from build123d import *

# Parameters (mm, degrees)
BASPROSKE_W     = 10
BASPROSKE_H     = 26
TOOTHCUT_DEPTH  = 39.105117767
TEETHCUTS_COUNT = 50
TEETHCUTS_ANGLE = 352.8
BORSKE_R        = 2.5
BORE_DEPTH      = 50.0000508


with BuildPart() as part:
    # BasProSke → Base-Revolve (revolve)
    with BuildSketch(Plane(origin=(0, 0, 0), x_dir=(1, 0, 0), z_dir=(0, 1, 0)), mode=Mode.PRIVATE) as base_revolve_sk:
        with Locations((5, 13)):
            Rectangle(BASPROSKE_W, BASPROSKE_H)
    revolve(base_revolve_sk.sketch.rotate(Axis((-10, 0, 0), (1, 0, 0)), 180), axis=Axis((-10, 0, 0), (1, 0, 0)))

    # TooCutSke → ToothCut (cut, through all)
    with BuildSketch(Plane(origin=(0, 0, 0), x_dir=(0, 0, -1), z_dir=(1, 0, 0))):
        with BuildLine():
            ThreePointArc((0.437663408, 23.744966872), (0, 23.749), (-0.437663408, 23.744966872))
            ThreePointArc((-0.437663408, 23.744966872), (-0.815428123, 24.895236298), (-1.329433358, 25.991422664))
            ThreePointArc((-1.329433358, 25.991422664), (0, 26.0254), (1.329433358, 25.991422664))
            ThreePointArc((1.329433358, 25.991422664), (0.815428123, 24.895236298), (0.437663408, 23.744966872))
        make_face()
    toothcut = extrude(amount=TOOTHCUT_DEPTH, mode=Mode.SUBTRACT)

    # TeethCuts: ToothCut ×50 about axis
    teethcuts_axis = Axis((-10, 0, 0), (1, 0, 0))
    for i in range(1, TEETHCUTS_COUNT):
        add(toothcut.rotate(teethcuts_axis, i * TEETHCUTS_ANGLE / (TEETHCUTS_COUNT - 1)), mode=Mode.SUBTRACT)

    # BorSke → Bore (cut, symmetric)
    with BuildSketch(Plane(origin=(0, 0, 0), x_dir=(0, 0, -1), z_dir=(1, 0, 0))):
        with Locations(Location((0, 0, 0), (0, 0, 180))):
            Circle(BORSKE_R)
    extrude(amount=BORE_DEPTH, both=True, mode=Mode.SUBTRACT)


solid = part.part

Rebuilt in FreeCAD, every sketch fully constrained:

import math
import FreeCAD as App
import Part
import Sketcher

doc = App.newDocument("Part")
body = doc.addObject("PartDesign::Body", "Body")

# Sketch on XZ plane
sketch1 = doc.addObject("Sketcher::SketchObject", "Sketch")
body.addObject(sketch1)
sketch1.AttachmentSupport = (doc.XZ_Plane, [""])
sketch1.MapMode = "FlatFace"
sketch1.addGeometry(Part.LineSegment(App.Vector(0, -26, 0), App.Vector(0, 0, 0)), False)
sketch1.addGeometry(Part.LineSegment(App.Vector(0, 0, 0), App.Vector(10, 0, 0)), False)
sketch1.addGeometry(Part.LineSegment(App.Vector(10, 0, 0), App.Vector(10, -26, 0)), False)
sketch1.addGeometry(Part.LineSegment(App.Vector(10, -26, 0), App.Vector(0, -26, 0)), False)
sketch1.addConstraint(Sketcher.Constraint("Coincident", 0, 2, 1, 1))
sketch1.addConstraint(Sketcher.Constraint("Coincident", 1, 2, 2, 1))
sketch1.addConstraint(Sketcher.Constraint("Coincident", 2, 2, 3, 1))
sketch1.addConstraint(Sketcher.Constraint("Coincident", 3, 2, 0, 1))
sketch1.addConstraint(Sketcher.Constraint("Vertical", 0))
sketch1.addConstraint(Sketcher.Constraint("Horizontal", 1))
sketch1.addConstraint(Sketcher.Constraint("Vertical", 2))
sketch1.addConstraint(Sketcher.Constraint("Horizontal", 3))
sketch1.addConstraint(Sketcher.Constraint("Coincident", 0, 2, -1, 1))
sketch1.addConstraint(Sketcher.Constraint("DistanceX", 1, 1, 1, 2, 10.0))
sketch1.addConstraint(Sketcher.Constraint("DistanceY", 0, 1, 0, 2, 26.0))
revolution = doc.addObject("PartDesign::Revolution", "Revolution")
body.addObject(revolution)
revolution.Profile = sketch1
revolution.ReferenceAxis = (sketch1, ["H_Axis"])
revolution.Angle = 360

# Sketch on YZ plane
sketch2 = doc.addObject("Sketcher::SketchObject", "Sketch001")
body.addObject(sketch2)
sketch2.AttachmentSupport = (doc.YZ_Plane, [""])
sketch2.MapMode = "FlatFace"
sketch2.addGeometry(Part.ArcOfCircle(Part.Circle(App.Vector(0, 0, 0), App.Vector(0, 0, 1), 23.7), math.radians(-1.06), math.radians(1.06)), False)
sketch2.addGeometry(Part.ArcOfCircle(Part.Circle(App.Vector(21.2, -10.1, 0), App.Vector(0, 0, 1), 10), math.radians(61.41), math.radians(75.29)), False)
sketch2.addGeometry(Part.ArcOfCircle(Part.Circle(App.Vector(0, 0, 0), App.Vector(0, 0, 1), 26), math.radians(-2.93), math.radians(2.93)), False)
sketch2.addGeometry(Part.ArcOfCircle(Part.Circle(App.Vector(21.2, 10.1, 0), App.Vector(0, 0, 1), 10), math.radians(-75.29), math.radians(-61.41)), False)
sketch2.addConstraint(Sketcher.Constraint("Coincident", 0, 1, 1, 2))
sketch2.addConstraint(Sketcher.Constraint("Coincident", 1, 1, 2, 1))
sketch2.addConstraint(Sketcher.Constraint("Coincident", 2, 2, 3, 2))
sketch2.addConstraint(Sketcher.Constraint("Coincident", 3, 1, 0, 2))
sketch2.addConstraint(Sketcher.Constraint("Coincident", 0, 3, -1, 1))
sketch2.addConstraint(Sketcher.Constraint("Coincident", 2, 3, -1, 1))
sketch2.addConstraint(Sketcher.Constraint("Equal", 1, 3))
sketch2.addConstraint(Sketcher.Constraint("Symmetric", 1, 3, 3, 3, -1))
sketch2.addConstraint(Sketcher.Constraint("Radius", 1, 10.0))
sketch2.addConstraint(Sketcher.Constraint("Radius", 0, 23.749001))
sketch2.addConstraint(Sketcher.Constraint("Radius", 2, 26.0254))
sketch2.addConstraint(Sketcher.Constraint("DistanceX", -1, 1, 1, 3, 21.20564))
sketch2.addConstraint(Sketcher.Constraint("DistanceX", 0, 3, 0, 1, 23.744968))
pocket1 = doc.addObject("PartDesign::Pocket", "Pocket")
body.addObject(pocket1)
pocket1.Profile = sketch2
pocket1.Type = "ThroughAll"
pocket1.Reversed = True
doc.recompute()

polarpattern = doc.addObject("PartDesign::PolarPattern", "PolarPattern")
body.addObject(polarpattern)
polarpattern.Originals = [pocket1]
polarpattern.Axis = (doc.X_Axis, [""])
polarpattern.Angle = 360
polarpattern.Occurrences = 50
body.Tip = polarpattern

# Sketch on YZ plane
sketch3 = doc.addObject("Sketcher::SketchObject", "Sketch002")
body.addObject(sketch3)
sketch3.AttachmentSupport = (doc.YZ_Plane, [""])
sketch3.MapMode = "FlatFace"
sketch3.addGeometry(Part.Circle(App.Vector(0, 0, 0), App.Vector(0, 0, 1), 2.5), False)
sketch3.addConstraint(Sketcher.Constraint("Coincident", 0, 3, -1, 1))
sketch3.addConstraint(Sketcher.Constraint("Diameter", 0, 5.0))
pocket2 = doc.addObject("PartDesign::Pocket", "Pocket001")
body.addObject(pocket2)
pocket2.Profile = sketch3
pocket2.Length = 100.000102
pocket2.Midplane = True

doc.recompute()
